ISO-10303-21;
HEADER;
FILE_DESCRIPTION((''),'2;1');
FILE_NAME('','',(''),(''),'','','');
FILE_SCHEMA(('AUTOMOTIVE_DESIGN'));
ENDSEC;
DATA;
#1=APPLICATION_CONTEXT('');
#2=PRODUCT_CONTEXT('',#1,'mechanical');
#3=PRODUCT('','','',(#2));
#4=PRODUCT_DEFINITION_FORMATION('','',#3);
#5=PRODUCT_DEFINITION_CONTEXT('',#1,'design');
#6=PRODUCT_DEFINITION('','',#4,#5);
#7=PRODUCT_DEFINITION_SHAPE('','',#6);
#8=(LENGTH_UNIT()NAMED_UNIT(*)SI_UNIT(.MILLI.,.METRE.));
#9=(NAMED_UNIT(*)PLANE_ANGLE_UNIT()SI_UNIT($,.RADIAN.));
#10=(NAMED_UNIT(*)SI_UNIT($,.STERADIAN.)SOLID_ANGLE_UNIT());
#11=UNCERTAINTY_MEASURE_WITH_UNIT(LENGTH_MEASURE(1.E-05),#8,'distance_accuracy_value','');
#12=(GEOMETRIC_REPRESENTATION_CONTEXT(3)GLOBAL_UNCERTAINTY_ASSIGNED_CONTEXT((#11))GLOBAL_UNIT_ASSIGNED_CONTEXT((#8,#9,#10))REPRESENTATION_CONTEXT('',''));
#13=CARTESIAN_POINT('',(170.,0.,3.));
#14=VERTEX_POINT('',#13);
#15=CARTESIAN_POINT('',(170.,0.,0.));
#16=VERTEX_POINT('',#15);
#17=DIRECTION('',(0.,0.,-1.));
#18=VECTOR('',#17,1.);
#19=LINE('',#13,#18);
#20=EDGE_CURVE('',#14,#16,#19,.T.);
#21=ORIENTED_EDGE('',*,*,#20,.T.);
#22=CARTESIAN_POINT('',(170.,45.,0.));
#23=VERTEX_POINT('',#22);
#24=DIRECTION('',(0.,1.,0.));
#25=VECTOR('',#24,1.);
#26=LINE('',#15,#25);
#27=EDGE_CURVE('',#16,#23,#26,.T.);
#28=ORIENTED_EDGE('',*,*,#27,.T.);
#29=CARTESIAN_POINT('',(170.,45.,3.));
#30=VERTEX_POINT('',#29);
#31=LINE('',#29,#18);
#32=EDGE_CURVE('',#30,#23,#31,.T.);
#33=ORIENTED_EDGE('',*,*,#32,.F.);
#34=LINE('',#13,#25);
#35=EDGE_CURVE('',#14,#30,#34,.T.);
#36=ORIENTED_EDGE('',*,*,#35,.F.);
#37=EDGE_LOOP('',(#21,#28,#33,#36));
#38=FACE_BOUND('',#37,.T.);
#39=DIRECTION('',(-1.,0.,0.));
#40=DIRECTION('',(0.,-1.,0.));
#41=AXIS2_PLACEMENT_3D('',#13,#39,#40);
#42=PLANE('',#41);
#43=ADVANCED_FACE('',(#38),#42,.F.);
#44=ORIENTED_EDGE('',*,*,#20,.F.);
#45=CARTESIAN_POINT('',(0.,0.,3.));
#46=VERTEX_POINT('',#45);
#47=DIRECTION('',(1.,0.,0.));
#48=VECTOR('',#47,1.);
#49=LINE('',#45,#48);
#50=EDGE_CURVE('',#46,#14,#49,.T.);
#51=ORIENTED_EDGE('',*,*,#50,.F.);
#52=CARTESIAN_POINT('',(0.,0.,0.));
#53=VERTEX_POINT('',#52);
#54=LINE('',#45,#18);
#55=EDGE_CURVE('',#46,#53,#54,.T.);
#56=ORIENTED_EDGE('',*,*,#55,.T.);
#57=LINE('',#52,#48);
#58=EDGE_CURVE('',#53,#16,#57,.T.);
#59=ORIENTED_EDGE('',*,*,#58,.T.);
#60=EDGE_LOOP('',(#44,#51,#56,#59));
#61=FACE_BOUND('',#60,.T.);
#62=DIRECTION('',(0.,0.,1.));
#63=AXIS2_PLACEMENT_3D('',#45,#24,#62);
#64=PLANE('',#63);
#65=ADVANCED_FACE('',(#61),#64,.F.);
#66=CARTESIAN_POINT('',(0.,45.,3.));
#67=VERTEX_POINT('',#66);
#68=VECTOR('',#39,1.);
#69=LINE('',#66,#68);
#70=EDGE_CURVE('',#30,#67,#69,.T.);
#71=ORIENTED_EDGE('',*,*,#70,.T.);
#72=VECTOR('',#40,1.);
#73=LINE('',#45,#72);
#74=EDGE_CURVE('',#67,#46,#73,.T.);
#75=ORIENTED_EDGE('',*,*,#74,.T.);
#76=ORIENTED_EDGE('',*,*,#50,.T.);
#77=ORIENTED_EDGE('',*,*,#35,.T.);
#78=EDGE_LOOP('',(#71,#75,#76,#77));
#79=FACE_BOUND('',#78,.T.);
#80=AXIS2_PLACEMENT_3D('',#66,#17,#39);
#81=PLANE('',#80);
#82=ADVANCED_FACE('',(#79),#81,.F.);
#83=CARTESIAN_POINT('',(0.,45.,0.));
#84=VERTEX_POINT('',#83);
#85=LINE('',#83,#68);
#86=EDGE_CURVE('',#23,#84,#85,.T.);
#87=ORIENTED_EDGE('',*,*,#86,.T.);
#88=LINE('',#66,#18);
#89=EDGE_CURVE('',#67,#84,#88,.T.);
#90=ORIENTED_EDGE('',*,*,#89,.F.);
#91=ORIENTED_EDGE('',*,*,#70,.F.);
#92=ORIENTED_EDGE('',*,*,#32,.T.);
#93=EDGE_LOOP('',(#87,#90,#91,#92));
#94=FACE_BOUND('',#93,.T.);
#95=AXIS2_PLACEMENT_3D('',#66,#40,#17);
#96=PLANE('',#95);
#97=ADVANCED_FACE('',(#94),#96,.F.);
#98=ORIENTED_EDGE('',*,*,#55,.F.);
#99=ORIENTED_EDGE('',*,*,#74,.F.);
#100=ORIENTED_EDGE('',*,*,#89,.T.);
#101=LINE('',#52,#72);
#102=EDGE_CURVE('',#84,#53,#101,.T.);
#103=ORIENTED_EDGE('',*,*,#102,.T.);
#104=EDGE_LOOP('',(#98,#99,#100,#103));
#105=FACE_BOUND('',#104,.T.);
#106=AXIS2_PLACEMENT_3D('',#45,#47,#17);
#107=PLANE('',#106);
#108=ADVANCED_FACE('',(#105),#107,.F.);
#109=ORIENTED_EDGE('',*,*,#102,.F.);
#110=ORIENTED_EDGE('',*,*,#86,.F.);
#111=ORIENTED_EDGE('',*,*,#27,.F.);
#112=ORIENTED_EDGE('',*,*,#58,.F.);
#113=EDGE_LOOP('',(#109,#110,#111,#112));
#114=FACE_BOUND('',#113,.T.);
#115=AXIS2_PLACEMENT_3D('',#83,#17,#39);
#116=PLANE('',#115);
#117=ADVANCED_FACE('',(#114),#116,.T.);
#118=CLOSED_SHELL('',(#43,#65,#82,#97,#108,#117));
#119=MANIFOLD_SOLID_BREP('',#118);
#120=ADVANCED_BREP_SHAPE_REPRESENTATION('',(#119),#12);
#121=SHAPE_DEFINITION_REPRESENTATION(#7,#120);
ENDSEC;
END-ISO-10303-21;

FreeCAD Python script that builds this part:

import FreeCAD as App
import Part
import Sketcher

V = App.Vector

doc = App.newDocument("Part")
body = doc.addObject("PartDesign::Body", "Body")

# Sketch on XY plane
sketch1 = body.newObject("Sketcher::SketchObject", "Sketch")
sketch1.AttachmentSupport = (doc.getObject("XY_Plane"), [""])
sketch1.MapMode = "FlatFace"
sketch1.addGeometry([
    Part.LineSegment(V(0, 45, 0), V(0, 0, 0)),
    Part.LineSegment(V(0, 0, 0), V(170, 0, 0)),
    Part.LineSegment(V(170, 0, 0), V(170, 45, 0)),
    Part.LineSegment(V(170, 45, 0), V(0, 45, 0)),
], False)
sketch1.addConstraint([
    Sketcher.Constraint("Coincident", 0, 2, 1, 1),
    Sketcher.Constraint("Coincident", 1, 2, 2, 1),
    Sketcher.Constraint("Coincident", 2, 2, 3, 1),
    Sketcher.Constraint("Coincident", 3, 2, 0, 1),
    Sketcher.Constraint("Vertical", 0),
    Sketcher.Constraint("Horizontal", 1),
    Sketcher.Constraint("Vertical", 2),
    Sketcher.Constraint("Horizontal", 3),
    Sketcher.Constraint("Coincident", 0, 2, -1, 1),
    Sketcher.Constraint("DistanceX", 1, 1, 1, 2, 170.0),
    Sketcher.Constraint("DistanceY", 0, 2, 0, 1, 45.0),
])
pad1 = body.newObject("PartDesign::Pad", "Pad")
pad1.Profile = sketch1
pad1.Length = 3

doc.recompute()
